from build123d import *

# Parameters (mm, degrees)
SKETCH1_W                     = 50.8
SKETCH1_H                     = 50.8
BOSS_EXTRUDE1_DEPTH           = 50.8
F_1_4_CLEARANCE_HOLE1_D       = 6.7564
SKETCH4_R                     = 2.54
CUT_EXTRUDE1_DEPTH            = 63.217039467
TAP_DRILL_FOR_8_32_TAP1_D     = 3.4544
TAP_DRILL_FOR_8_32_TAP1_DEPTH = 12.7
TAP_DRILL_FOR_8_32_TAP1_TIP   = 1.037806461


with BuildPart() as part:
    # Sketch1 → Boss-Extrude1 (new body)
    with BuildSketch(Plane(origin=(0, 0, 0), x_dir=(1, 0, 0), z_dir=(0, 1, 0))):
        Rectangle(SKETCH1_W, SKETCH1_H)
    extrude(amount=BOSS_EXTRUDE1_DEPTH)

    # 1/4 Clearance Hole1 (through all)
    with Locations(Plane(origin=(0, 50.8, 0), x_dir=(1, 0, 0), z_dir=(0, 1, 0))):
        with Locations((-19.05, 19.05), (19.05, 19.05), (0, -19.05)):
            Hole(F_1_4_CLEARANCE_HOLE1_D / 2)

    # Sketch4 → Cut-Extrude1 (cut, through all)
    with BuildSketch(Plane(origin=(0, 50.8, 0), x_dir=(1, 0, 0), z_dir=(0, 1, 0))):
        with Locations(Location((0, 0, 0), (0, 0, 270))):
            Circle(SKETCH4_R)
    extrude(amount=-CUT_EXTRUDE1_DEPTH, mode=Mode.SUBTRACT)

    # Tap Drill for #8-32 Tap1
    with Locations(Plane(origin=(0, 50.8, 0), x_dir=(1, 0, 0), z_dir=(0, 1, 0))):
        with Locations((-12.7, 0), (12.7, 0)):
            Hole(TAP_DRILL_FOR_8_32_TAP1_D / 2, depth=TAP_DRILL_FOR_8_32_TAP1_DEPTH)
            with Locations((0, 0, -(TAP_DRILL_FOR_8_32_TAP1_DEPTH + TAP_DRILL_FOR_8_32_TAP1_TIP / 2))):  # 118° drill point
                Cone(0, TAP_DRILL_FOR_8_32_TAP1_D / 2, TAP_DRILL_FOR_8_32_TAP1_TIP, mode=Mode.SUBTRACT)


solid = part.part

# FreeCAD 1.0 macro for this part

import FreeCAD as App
import Part
import Sketcher

V = App.Vector
Q = App.Units.Quantity

doc = App.newDocument("Part")
body = doc.addObject("PartDesign::Body", "Body")

# Sketch on XZ plane
sketch1 = body.newObject("Sketcher::SketchObject", "Sketch")
sketch1.AttachmentSupport = (doc.getObject("XZ_Plane"), [""])
sketch1.MapMode = "FlatFace"
sketch1.addGeometry(Part.LineSegment(V(-25, -25, 0), V(-25, 25, 0)), False)
sketch1.addGeometry(Part.LineSegment(V(-25, 25, 0), V(25, 25, 0)), False)
sketch1.addGeometry(Part.LineSegment(V(25, 25, 0), V(25, -25, 0)), False)
sketch1.addGeometry(Part.LineSegment(V(25, -25, 0), V(-25, -25, 0)), False)
sketch1.addConstraint(Sketcher.Constraint("Coincident", 0, 2, 1, 1))
sketch1.addConstraint(Sketcher.Constraint("Coincident", 1, 2, 2, 1))
sketch1.addConstraint(Sketcher.Constraint("Coincident", 2, 2, 3, 1))
sketch1.addConstraint(Sketcher.Constraint("Coincident", 3, 2, 0, 1))
sketch1.addConstraint(Sketcher.Constraint("Vertical", 0))
sketch1.addConstraint(Sketcher.Constraint("Horizontal", 1))
sketch1.addConstraint(Sketcher.Constraint("Vertical", 2))
sketch1.addConstraint(Sketcher.Constraint("Horizontal", 3))
sketch1.addConstraint(Sketcher.Constraint("Symmetric", 0, 2, 2, 2, -1, 1))
sketch1.addConstraint(Sketcher.Constraint("Equal", 3, 0))
sketch1.addConstraint(Sketcher.Constraint("DistanceX", 1, 1, 1, 2, Q("2 in")))
pad1 = body.newObject("PartDesign::Pad", "Pad")
pad1.Profile = sketch1
pad1.Length = Q("2 in")
pad1.Reversed = True

# Sketch on XZ plane
sketch2 = body.newObject("Sketcher::SketchObject", "Sketch001")
sketch2.AttachmentSupport = (doc.getObject("XZ_Plane"), [""])
sketch2.MapMode = "FlatFace"
sketch2.AttachmentOffset = App.Placement(V(0, 0, -2 * 25.4), App.Rotation())
sketch2.addGeometry(Part.Circle(V(-19.1, -19.1, 0), V(0, 0, 1), 3.4), False)
sketch2.addGeometry(Part.Circle(V(19.1, -19.1, 0), V(0, 0, 1), 3.4), False)
sketch2.addGeometry(Part.Circle(V(0, 19.1, 0), V(0, 0, 1), 3.4), False)
sketch2.addConstraint(Sketcher.Constraint("Equal", 0, 1))
sketch2.addConstraint(Sketcher.Constraint("Equal", 1, 2))
sketch2.addConstraint(Sketcher.Constraint("Symmetric", 0, 3, 1, 3, -2))
sketch2.addConstraint(Sketcher.Constraint("PointOnObject", 2, 3, -2))
sketch2.addConstraint(Sketcher.Constraint("Diameter", 0, Q("0.266 in")))
sketch2.addConstraint(Sketcher.Constraint("DistanceX", 0, 3, 1, 3, Q("1.5 in")))
sketch2.addConstraint(Sketcher.Constraint("DistanceY", 0, 3, 2, 3, Q("1.5 in")))
sketch2.addConstraint(Sketcher.Constraint("DistanceY", 0, 3, -1, 1, Q("0.75 in")))
doc.recompute()
hole = body.newObject("PartDesign::Hole", "Hole")
hole.Profile = sketch2
hole.ThreadType = "None"
hole.Diameter = Q("0.266 in")
hole.DepthType = "ThroughAll"
hole.Reversed = True

# Sketch on XZ plane
sketch3 = body.newObject("Sketcher::SketchObject", "Sketch002")
sketch3.AttachmentSupport = (doc.getObject("XZ_Plane"), [""])
sketch3.MapMode = "FlatFace"
sketch3.AttachmentOffset = App.Placement(V(0, 0, -2 * 25.4), App.Rotation())
sketch3.addGeometry(Part.Circle(V(0, 0, 0), V(0, 0, 1), 2.5), False)
sketch3.addConstraint(Sketcher.Constraint("Coincident", 0, 3, -1, 1))
sketch3.addConstraint(Sketcher.Constraint("Diameter", 0, Q("0.2 in")))
pocket1 = body.newObject("PartDesign::Pocket", "Pocket")
pocket1.Profile = sketch3
pocket1.Type = "ThroughAll"
pocket1.Reversed = True

# Sketch on XZ plane
sketch4 = body.newObject("Sketcher::SketchObject", "Sketch003")
sketch4.AttachmentSupport = (doc.getObject("XZ_Plane"), [""])
sketch4.MapMode = "FlatFace"
sketch4.AttachmentOffset = App.Placement(V(0, 0, -2 * 25.4), App.Rotation())
sketch4.addGeometry(Part.Circle(V(-12.7, 0, 0), V(0, 0, 1), 1.7), False)
sketch4.addGeometry(Part.Circle(V(12.7, 0, 0), V(0, 0, 1), 1.7), False)
sketch4.addConstraint(Sketcher.Constraint("Equal", 0, 1))
sketch4.addConstraint(Sketcher.Constraint("Symmetric", 0, 3, 1, 3, -1, 1))
sketch4.addConstraint(Sketcher.Constraint("PointOnObject", 0, 3, -1))
sketch4.addConstraint(Sketcher.Constraint("Diameter", 0, Q("0.136 in")))
sketch4.addConstraint(Sketcher.Constraint("DistanceX", 0, 3, 1, 3, Q("1 in")))
doc.recompute()
hole2 = body.newObject("PartDesign::Hole", "Hole001")
hole2.Profile = sketch4
hole2.ThreadType = "None"
hole2.Diameter = Q("0.136 in")
hole2.DepthType = "Dimension"
hole2.Depth = Q("0.5 in")
hole2.DrillPoint = "Angled"
hole2.DrillPointAngle = 118
hole2.Reversed = True

doc.recompute()
